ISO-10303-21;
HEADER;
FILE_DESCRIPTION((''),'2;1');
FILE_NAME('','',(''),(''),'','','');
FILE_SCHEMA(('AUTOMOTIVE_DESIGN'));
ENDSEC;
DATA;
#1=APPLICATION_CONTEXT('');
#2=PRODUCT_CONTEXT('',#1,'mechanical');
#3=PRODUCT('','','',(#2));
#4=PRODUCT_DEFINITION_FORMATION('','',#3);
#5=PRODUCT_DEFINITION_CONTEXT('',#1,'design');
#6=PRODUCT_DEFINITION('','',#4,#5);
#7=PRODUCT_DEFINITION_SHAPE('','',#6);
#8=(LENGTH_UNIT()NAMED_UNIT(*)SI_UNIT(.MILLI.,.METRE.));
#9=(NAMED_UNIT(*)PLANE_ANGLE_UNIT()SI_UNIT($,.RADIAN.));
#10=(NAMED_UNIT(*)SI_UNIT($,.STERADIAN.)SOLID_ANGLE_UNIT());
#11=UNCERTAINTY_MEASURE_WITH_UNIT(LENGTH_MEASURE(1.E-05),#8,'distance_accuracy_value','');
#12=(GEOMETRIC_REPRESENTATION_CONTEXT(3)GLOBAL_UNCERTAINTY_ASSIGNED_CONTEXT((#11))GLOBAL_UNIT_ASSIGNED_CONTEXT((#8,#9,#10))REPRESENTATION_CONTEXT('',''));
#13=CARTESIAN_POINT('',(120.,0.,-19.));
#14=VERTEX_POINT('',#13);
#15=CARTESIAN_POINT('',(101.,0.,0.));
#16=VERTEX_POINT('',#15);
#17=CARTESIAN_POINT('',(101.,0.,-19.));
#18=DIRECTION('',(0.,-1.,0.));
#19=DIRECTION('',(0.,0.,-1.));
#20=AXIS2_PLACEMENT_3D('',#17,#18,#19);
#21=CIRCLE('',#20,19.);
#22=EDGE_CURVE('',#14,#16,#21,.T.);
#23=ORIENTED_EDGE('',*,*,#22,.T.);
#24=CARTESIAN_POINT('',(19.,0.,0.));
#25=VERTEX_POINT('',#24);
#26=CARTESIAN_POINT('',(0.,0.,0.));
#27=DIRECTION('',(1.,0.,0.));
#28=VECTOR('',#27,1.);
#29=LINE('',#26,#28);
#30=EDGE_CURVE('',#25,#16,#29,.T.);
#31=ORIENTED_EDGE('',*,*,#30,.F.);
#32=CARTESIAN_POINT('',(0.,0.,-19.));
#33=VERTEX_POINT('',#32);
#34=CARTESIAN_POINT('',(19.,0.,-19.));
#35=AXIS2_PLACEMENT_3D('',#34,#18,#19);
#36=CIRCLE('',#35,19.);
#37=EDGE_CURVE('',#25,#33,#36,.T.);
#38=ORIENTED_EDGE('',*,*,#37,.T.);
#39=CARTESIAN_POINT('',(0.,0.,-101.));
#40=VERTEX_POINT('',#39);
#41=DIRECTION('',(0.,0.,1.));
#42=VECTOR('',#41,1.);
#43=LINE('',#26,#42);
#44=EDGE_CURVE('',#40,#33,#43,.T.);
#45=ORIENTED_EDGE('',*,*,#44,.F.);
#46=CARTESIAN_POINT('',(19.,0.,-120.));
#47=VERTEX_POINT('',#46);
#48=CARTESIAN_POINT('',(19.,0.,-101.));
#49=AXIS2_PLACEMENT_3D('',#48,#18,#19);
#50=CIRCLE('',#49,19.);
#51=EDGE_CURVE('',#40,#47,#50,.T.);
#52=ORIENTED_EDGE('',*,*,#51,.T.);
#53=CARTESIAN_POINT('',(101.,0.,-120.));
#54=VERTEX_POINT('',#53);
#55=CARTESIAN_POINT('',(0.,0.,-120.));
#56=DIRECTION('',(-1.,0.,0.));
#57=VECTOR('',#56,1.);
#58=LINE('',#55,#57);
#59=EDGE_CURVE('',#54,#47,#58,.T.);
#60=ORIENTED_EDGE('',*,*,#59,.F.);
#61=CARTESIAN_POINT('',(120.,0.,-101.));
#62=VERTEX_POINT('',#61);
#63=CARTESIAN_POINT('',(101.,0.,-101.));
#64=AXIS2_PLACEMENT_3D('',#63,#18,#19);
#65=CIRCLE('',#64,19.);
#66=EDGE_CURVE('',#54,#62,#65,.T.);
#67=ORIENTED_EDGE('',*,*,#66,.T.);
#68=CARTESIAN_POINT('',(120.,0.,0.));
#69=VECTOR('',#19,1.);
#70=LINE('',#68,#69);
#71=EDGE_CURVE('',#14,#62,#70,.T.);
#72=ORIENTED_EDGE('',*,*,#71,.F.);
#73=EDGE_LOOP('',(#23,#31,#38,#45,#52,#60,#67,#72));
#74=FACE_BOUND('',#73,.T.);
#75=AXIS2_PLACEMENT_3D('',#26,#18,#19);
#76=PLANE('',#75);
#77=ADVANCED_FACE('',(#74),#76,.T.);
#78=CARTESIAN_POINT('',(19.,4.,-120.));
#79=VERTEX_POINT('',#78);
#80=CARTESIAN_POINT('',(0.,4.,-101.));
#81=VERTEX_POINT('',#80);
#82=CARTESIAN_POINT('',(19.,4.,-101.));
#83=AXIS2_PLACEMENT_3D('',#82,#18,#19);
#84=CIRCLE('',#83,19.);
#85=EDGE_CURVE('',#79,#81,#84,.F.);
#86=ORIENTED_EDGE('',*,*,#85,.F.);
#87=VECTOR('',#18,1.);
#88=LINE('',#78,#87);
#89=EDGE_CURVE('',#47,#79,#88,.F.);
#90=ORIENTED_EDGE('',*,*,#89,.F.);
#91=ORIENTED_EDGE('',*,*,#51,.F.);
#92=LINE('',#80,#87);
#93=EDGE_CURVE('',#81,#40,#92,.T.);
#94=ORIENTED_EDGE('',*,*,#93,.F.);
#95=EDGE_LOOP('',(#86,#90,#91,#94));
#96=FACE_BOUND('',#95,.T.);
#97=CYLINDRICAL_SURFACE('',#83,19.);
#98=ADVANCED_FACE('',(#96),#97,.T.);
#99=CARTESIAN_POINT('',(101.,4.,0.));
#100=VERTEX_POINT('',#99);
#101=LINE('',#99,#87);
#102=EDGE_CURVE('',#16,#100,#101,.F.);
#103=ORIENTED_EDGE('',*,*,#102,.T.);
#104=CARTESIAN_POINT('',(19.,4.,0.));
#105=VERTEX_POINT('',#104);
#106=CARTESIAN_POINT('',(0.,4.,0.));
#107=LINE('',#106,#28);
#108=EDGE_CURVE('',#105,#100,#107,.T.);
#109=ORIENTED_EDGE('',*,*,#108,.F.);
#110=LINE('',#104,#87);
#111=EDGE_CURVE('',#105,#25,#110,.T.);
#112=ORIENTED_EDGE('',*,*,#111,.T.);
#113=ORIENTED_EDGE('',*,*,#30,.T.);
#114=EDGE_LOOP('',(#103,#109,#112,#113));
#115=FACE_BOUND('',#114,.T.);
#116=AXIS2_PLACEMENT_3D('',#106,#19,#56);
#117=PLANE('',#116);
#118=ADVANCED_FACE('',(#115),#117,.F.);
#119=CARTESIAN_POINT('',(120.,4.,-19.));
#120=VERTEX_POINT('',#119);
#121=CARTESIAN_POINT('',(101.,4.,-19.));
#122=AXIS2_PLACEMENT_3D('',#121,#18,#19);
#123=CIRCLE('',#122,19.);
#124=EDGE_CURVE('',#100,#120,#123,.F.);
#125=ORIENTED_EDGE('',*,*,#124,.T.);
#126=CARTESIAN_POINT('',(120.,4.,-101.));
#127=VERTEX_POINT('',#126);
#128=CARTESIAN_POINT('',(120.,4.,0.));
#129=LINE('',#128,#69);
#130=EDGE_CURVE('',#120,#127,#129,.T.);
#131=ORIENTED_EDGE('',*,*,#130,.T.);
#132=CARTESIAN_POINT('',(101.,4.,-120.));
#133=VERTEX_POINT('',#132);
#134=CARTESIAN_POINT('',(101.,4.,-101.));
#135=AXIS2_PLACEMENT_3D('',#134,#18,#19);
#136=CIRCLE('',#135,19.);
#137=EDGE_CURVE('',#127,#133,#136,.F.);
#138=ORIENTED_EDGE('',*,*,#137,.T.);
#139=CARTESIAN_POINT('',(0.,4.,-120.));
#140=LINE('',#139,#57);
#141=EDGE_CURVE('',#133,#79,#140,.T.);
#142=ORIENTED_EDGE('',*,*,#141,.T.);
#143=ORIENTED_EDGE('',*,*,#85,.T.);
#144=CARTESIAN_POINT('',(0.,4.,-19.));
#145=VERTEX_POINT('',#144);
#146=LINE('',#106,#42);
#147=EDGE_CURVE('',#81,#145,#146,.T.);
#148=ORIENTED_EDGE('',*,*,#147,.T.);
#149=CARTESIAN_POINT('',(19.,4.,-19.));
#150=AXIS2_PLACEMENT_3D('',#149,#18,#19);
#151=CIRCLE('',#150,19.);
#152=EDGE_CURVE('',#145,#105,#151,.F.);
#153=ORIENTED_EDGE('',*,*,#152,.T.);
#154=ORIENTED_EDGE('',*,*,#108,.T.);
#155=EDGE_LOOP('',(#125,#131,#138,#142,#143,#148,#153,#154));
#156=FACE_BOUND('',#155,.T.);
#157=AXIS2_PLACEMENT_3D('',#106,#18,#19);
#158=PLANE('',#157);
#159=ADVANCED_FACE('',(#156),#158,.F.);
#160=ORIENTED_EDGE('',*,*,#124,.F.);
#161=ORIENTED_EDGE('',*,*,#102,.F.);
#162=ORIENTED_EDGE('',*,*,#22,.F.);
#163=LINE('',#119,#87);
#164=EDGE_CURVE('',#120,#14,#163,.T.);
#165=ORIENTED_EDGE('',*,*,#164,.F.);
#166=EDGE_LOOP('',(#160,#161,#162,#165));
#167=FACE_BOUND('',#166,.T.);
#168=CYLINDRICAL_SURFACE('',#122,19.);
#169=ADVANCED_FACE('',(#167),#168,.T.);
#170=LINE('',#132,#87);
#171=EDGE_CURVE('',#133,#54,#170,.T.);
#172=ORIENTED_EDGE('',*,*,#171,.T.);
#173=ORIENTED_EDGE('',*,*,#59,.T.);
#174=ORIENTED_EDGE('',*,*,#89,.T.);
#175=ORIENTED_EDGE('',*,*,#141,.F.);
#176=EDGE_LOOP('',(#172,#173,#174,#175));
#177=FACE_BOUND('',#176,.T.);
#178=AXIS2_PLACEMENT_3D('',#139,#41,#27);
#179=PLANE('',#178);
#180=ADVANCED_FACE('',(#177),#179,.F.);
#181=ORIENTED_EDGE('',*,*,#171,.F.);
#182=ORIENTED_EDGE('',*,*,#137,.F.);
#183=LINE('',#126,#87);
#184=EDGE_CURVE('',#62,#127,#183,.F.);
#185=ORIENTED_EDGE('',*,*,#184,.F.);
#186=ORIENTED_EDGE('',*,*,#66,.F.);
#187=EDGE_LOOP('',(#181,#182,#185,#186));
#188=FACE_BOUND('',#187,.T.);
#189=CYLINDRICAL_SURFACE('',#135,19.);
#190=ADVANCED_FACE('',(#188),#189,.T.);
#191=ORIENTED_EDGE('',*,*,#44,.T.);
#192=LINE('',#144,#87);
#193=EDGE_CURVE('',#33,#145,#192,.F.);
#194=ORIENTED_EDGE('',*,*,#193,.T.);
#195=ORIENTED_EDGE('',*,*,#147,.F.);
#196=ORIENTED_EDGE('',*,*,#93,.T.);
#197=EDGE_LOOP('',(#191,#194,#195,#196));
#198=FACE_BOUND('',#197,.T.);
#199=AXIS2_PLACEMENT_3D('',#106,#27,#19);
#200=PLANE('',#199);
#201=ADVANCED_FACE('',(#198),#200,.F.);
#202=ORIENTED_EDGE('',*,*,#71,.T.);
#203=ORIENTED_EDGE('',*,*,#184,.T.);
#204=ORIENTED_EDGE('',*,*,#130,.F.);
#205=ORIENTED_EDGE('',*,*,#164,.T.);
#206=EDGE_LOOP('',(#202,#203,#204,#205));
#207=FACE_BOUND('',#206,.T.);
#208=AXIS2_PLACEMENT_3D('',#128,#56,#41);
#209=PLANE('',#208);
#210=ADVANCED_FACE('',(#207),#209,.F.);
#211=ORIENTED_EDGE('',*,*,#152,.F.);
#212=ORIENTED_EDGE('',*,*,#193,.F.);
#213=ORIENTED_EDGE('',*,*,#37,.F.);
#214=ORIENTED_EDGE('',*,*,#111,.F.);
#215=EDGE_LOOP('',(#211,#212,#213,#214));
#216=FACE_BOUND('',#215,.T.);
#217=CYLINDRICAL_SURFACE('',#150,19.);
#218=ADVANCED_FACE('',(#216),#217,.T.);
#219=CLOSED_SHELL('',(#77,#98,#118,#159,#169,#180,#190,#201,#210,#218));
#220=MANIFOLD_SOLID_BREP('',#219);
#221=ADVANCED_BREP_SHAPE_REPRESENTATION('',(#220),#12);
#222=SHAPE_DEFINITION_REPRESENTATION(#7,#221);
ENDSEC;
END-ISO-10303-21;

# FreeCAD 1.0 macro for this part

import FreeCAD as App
import Part
import Sketcher

V = App.Vector


def edges_at(feature, points):
    """Names of the edges that pass closest to the given points."""
    edges = feature.Shape.Edges
    near = lambda p: min(range(len(edges)), key=lambda i: edges[i].distToShape(Part.Vertex(*p))[0])
    return sorted({f"Edge{near(p) + 1}" for p in points})

doc = App.newDocument("Part")
body = doc.addObject("PartDesign::Body", "Body")

# Sketch on XZ plane
sketch1 = body.newObject("Sketcher::SketchObject", "Sketch")
sketch1.AttachmentSupport = (doc.getObject("XZ_Plane"), [""])
sketch1.MapMode = "FlatFace"
sketch1.addGeometry(Part.LineSegment(V(0, -120, 0), V(0, 0, 0)), False)
sketch1.addGeometry(Part.LineSegment(V(0, 0, 0), V(120, 0, 0)), False)
sketch1.addGeometry(Part.LineSegment(V(120, 0, 0), V(120, -120, 0)), False)
sketch1.addGeometry(Part.LineSegment(V(120, -120, 0), V(0, -120, 0)), False)
sketch1.addConstraint(Sketcher.Constraint("Coincident", 0, 2, 1, 1))
sketch1.addConstraint(Sketcher.Constraint("Coincident", 1, 2, 2, 1))
sketch1.addConstraint(Sketcher.Constraint("Coincident", 2, 2, 3, 1))
sketch1.addConstraint(Sketcher.Constraint("Coincident", 3, 2, 0, 1))
sketch1.addConstraint(Sketcher.Constraint("Vertical", 0))
sketch1.addConstraint(Sketcher.Constraint("Horizontal", 1))
sketch1.addConstraint(Sketcher.Constraint("Vertical", 2))
sketch1.addConstraint(Sketcher.Constraint("Horizontal", 3))
sketch1.addConstraint(Sketcher.Constraint("Coincident", 0, 2, -1, 1))
sketch1.addConstraint(Sketcher.Constraint("Equal", 3, 0))
sketch1.addConstraint(Sketcher.Constraint("DistanceX", 1, 1, 1, 2, 120.0))
pad1 = body.newObject("PartDesign::Pad", "Pad")
pad1.Profile = sketch1
pad1.Length = 4
pad1.Reversed = True
doc.recompute()

fillet = body.newObject("PartDesign::Fillet", "Fillet")
fillet.Base = (pad1, edges_at(pad1, [
    (0, 2, -120),
    (120, 2, -120),
    (120, 2, 0),
    (0, 2, 0),
]))
fillet.Radius = 19

doc.recompute()
